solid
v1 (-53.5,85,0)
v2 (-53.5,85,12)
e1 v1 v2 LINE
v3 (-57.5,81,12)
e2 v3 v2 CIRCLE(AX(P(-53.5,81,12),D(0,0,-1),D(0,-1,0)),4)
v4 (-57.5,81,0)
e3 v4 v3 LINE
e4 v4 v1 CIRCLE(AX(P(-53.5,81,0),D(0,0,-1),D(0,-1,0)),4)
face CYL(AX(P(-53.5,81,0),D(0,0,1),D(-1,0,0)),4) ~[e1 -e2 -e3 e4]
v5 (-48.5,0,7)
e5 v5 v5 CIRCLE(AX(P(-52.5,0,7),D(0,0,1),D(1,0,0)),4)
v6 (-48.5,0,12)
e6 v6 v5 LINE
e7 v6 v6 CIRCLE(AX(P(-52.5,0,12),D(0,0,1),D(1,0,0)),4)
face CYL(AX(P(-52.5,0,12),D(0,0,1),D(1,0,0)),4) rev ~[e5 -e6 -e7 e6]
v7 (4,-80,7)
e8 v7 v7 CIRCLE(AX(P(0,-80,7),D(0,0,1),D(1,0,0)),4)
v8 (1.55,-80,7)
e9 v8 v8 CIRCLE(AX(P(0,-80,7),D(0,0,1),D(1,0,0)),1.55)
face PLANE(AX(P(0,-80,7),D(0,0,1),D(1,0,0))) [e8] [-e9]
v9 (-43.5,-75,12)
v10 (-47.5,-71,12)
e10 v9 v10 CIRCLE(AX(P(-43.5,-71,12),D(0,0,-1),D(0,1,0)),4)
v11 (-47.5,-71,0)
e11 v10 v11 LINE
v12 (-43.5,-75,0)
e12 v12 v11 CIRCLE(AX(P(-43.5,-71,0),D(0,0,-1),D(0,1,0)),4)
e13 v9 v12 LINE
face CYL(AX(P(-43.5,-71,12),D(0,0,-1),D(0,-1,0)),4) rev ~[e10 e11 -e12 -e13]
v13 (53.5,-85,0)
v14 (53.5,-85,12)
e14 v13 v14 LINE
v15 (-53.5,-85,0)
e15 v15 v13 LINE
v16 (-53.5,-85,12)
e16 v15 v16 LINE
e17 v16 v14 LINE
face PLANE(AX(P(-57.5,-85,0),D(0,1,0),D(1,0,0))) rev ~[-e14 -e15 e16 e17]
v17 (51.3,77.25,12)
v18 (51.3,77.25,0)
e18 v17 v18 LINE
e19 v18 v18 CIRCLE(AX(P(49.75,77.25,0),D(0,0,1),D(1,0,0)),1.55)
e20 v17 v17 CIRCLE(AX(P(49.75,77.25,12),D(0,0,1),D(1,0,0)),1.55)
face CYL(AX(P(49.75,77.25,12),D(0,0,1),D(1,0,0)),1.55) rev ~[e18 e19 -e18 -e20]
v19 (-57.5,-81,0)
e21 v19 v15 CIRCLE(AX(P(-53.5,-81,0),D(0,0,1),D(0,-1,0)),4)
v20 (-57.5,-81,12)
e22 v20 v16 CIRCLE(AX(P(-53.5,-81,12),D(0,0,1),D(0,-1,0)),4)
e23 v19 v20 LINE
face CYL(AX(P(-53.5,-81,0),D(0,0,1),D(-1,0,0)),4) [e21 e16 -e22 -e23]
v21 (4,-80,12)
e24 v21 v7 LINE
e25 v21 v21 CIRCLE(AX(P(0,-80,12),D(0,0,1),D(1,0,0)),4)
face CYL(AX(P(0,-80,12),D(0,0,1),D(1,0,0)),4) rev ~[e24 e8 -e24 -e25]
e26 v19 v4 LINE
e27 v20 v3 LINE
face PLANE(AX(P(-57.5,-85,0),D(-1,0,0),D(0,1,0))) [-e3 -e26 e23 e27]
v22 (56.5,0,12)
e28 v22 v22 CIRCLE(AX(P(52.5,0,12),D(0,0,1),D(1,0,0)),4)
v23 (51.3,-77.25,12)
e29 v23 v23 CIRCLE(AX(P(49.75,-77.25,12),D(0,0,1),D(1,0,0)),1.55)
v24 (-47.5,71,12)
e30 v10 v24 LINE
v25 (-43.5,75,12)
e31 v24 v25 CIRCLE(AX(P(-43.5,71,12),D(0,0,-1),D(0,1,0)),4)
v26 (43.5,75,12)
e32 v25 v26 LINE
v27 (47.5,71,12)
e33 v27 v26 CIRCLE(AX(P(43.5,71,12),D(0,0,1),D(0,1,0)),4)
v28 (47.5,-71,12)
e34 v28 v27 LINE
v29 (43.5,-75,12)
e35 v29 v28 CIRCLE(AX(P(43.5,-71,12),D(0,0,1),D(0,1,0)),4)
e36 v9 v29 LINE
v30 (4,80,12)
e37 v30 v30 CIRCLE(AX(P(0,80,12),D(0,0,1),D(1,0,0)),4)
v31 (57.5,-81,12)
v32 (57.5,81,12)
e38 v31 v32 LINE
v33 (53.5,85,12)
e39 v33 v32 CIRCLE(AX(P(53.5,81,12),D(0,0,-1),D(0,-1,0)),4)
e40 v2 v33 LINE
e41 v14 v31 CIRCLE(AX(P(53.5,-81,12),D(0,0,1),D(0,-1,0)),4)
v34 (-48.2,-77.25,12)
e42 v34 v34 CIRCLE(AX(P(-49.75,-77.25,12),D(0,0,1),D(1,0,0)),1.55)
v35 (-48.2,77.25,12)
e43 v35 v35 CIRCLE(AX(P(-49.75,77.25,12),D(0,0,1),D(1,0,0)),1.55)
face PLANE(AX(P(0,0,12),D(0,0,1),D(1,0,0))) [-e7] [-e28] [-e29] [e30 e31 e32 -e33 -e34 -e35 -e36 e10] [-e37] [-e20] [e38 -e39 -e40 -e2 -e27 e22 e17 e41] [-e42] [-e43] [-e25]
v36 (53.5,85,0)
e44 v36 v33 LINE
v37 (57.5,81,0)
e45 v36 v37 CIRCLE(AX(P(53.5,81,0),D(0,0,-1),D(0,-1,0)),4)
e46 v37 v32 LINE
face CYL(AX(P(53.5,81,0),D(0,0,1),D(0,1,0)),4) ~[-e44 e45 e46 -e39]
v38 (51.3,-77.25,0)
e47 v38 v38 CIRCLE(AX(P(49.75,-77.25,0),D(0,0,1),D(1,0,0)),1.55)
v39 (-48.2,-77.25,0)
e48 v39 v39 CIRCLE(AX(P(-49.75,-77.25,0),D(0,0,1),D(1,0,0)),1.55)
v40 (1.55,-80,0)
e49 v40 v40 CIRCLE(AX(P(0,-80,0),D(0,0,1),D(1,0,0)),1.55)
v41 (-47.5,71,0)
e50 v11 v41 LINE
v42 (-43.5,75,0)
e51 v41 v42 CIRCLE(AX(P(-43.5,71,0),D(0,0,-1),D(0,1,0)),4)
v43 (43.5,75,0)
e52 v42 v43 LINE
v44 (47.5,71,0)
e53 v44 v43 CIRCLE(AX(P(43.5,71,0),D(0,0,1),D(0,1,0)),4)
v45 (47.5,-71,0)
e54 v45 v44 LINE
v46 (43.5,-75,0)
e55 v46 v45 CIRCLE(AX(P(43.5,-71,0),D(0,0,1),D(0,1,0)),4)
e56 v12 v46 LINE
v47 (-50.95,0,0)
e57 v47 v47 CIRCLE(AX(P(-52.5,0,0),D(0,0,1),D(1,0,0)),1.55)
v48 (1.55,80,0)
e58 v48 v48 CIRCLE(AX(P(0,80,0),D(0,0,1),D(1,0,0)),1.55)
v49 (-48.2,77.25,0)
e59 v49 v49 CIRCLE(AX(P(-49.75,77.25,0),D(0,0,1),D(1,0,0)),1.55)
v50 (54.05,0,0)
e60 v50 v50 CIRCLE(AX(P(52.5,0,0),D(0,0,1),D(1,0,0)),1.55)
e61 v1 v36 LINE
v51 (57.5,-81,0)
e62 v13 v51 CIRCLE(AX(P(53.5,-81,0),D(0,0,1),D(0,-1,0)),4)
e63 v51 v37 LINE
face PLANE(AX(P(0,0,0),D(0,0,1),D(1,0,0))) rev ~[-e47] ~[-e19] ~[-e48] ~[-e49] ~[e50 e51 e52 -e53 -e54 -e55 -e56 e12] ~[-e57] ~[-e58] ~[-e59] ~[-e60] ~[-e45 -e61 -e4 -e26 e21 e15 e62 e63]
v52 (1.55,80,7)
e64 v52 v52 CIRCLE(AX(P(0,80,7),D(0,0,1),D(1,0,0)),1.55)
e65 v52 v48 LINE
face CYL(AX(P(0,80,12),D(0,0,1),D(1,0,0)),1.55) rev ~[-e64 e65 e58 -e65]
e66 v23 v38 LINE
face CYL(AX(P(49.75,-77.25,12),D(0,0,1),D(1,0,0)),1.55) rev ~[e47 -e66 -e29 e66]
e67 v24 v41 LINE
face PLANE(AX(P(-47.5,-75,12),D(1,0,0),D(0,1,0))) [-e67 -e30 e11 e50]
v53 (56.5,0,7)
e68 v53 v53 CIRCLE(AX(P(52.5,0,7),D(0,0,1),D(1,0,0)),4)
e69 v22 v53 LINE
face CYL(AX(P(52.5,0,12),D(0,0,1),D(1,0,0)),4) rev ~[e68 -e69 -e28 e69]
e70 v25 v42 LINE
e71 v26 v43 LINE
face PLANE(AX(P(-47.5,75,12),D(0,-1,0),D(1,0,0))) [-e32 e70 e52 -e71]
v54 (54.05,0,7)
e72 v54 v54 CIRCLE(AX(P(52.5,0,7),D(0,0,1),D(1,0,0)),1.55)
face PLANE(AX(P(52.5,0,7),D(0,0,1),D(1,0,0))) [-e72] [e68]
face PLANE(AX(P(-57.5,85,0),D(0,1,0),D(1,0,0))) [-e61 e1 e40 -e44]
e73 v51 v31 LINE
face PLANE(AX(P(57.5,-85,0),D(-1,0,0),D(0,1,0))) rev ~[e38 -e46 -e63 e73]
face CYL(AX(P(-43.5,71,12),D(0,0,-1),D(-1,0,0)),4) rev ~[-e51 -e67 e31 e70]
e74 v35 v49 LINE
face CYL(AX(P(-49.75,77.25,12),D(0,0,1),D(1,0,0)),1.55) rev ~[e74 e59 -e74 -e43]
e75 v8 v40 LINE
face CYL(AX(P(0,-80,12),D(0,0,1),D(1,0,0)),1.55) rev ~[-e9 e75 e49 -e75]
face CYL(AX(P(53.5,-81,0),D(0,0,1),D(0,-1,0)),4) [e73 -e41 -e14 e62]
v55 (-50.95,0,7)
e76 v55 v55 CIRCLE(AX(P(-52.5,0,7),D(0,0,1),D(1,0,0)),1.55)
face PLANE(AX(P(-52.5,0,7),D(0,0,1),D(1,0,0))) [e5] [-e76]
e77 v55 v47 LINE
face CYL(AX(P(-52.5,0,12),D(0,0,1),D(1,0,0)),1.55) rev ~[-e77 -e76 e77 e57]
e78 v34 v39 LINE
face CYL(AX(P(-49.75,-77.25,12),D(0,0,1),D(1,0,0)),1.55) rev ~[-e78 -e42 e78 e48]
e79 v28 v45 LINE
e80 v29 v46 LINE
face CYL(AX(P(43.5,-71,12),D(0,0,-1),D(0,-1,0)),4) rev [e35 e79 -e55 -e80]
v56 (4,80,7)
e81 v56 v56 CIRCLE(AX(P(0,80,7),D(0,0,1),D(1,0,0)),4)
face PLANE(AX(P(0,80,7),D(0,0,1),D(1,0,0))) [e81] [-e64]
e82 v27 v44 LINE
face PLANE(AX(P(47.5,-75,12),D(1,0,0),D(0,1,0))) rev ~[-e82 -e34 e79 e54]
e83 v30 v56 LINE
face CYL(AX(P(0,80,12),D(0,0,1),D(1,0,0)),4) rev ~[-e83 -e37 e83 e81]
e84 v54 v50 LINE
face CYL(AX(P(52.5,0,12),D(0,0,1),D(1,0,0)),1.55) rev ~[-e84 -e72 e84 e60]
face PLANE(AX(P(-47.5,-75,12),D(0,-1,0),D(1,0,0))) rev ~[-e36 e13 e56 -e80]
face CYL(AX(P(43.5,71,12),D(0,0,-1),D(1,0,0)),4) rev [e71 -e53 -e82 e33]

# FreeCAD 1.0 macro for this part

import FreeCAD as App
import Part
import Sketcher

V = App.Vector


def edges_at(feature, points):
    """Names of the edges that pass closest to the given points."""
    edges = feature.Shape.Edges
    near = lambda p: min(range(len(edges)), key=lambda i: edges[i].distToShape(Part.Vertex(*p))[0])
    return sorted({f"Edge{near(p) + 1}" for p in points})

doc = App.newDocument("Part")
body = doc.addObject("PartDesign::Body", "Body")

sketch1 = doc.addObject("Sketcher::SketchObject", "Sketch")
body.addObject(sketch1)
sketch1.AttachmentSupport = (doc.XY_Plane, [""])
sketch1.MapMode = "FlatFace"
sketch1.addGeometry([
    Part.LineSegment(V(-57.5, 85, 0), V(-57.5, -85, 0)),
    Part.LineSegment(V(-57.5, -85, 0), V(57.5, -85, 0)),
    Part.LineSegment(V(57.5, -85, 0), V(57.5, 85, 0)),
    Part.LineSegment(V(57.5, 85, 0), V(-57.5, 85, 0)),
], False)
sketch1.addConstraint([
    Sketcher.Constraint("Coincident", 0, 2, 1, 1),
    Sketcher.Constraint("Coincident", 1, 2, 2, 1),
    Sketcher.Constraint("Coincident", 2, 2, 3, 1),
    Sketcher.Constraint("Coincident", 3, 2, 0, 1),
    Sketcher.Constraint("Vertical", 0),
    Sketcher.Constraint("Horizontal", 1),
    Sketcher.Constraint("Vertical", 2),
    Sketcher.Constraint("Horizontal", 3),
    Sketcher.Constraint("Symmetric", 0, 2, 2, 2, -1, 1),
    Sketcher.Constraint("DistanceX", 1, 1, 1, 2, 115.0),
    Sketcher.Constraint("DistanceY", 0, 2, 0, 1, 170.0),
])
pad1 = doc.addObject("PartDesign::Pad", "Pad")
body.addObject(pad1)
pad1.Profile = sketch1
pad1.Length = 12

sketch2 = doc.addObject("Sketcher::SketchObject", "Sketch001")
body.addObject(sketch2)
sketch2.AttachmentSupport = (doc.XY_Plane, [""])
sketch2.MapMode = "FlatFace"
sketch2.AttachmentOffset = App.Placement(V(0, 0, 12), App.Rotation())
sketch2.addGeometry([
    Part.LineSegment(V(-47.5, 75, 0), V(-47.5, -75, 0)),
    Part.LineSegment(V(-47.5, -75, 0), V(47.5, -75, 0)),
    Part.LineSegment(V(47.5, -75, 0), V(47.5, 75, 0)),
    Part.LineSegment(V(47.5, 75, 0), V(-47.5, 75, 0)),
], False)
sketch2.addConstraint([
    Sketcher.Constraint("Coincident", 0, 2, 1, 1),
    Sketcher.Constraint("Coincident", 1, 2, 2, 1),
    Sketcher.Constraint("Coincident", 2, 2, 3, 1),
    Sketcher.Constraint("Coincident", 3, 2, 0, 1),
    Sketcher.Constraint("Vertical", 0),
    Sketcher.Constraint("Horizontal", 1),
    Sketcher.Constraint("Vertical", 2),
    Sketcher.Constraint("Horizontal", 3),
    Sketcher.Constraint("Symmetric", 0, 2, 2, 2, -1, 1),
    Sketcher.Constraint("DistanceX", 1, 1, 1, 2, 95.0),
    Sketcher.Constraint("DistanceY", 0, 2, 0, 1, 150.0),
])
pocket1 = doc.addObject("PartDesign::Pocket", "Pocket")
body.addObject(pocket1)
pocket1.Profile = sketch2
pocket1.Type = "ThroughAll"

sketch3 = doc.addObject("Sketcher::SketchObject", "Sketch002")
body.addObject(sketch3)
sketch3.AttachmentSupport = (doc.XY_Plane, [""])
sketch3.MapMode = "FlatFace"
sketch3.AttachmentOffset = App.Placement(V(0, 0, 12), App.Rotation())
sketch3.addGeometry([
    Part.Circle(V(0, 80, 0), V(0, 0, 1), 1.55),
    Part.Circle(V(0, -80, 0), V(0, 0, 1), 1.55),
    Part.Circle(V(52.5, 0, 0), V(0, 0, 1), 1.55),
    Part.Circle(V(-52.5, 0, 0), V(0, 0, 1), 1.55),
], False)
sketch3.addConstraint([
    Sketcher.Constraint("Equal", 0, 1),
    Sketcher.Constraint("Equal", 1, 2),
    Sketcher.Constraint("Equal", 2, 3),
    Sketcher.Constraint("Symmetric", 0, 3, 1, 3, -1, 1),
    Sketcher.Constraint("Symmetric", 2, 3, 3, 3, -1, 1),
    Sketcher.Constraint("PointOnObject", 0, 3, -2),
    Sketcher.Constraint("PointOnObject", 2, 3, -1),
    Sketcher.Constraint("Diameter", 0, 3.1),
    Sketcher.Constraint("DistanceY", -1, 1, 0, 3, 80.0),
    Sketcher.Constraint("DistanceX", 3, 3, 2, 3, 105.0),
])
pocket2 = doc.addObject("PartDesign::Pocket", "Pocket001")
body.addObject(pocket2)
pocket2.Profile = sketch3
pocket2.Type = "ThroughAll"
doc.recompute()

fillet = doc.addObject("PartDesign::Fillet", "Fillet")
body.addObject(fillet)
fillet.Base = (pocket2, edges_at(pocket2, [
    (47.5, 75, 6),
    (-47.5, 75, 6),
    (57.5, 85, 6),
    (57.5, -85, 6),
    (-57.5, -85, 6),
    (-57.5, 85, 6),
    (47.5, -75, 6),
    (-47.5, -75, 6),
]))
fillet.Radius = 4

sketch4 = doc.addObject("Sketcher::SketchObject", "Sketch003")
body.addObject(sketch4)
sketch4.AttachmentSupport = (doc.XY_Plane, [""])
sketch4.MapMode = "FlatFace"
sketch4.AttachmentOffset = App.Placement(V(0, 0, 12), App.Rotation())
sketch4.addGeometry([
    Part.Circle(V(-49.75, 77.25, 0), V(0, 0, 1), 1.55),
    Part.Circle(V(49.75, 77.25, 0), V(0, 0, 1), 1.55),
    Part.Circle(V(49.75, -77.25, 0), V(0, 0, 1), 1.55),
    Part.Circle(V(-49.75, -77.25, 0), V(0, 0, 1), 1.55),
], False)
sketch4.addConstraint([
    Sketcher.Constraint("Equal", 0, 1),
    Sketcher.Constraint("Equal", 1, 2),
    Sketcher.Constraint("Equal", 2, 3),
    Sketcher.Constraint("Symmetric", 0, 3, 2, 3, -1, 1),
    Sketcher.Constraint("Symmetric", 1, 3, 3, 3, -1, 1),
    Sketcher.Constraint("Symmetric", 0, 3, 1, 3, -2),
    Sketcher.Constraint("Diameter", 0, 3.1),
    Sketcher.Constraint("DistanceX", 0, 3, 1, 3, 99.5),
    Sketcher.Constraint("DistanceY", 2, 3, 1, 3, 154.5),
])
pocket3 = doc.addObject("PartDesign::Pocket", "Pocket002")
body.addObject(pocket3)
pocket3.Profile = sketch4
pocket3.Type = "ThroughAll"

sketch5 = doc.addObject("Sketcher::SketchObject", "Sketch004")
body.addObject(sketch5)
sketch5.AttachmentSupport = (doc.XY_Plane, [""])
sketch5.MapMode = "FlatFace"
sketch5.AttachmentOffset = App.Placement(V(0, 0, 12), App.Rotation())
sketch5.addGeometry([
    Part.Circle(V(0, 80, 0), V(0, 0, 1), 4),
    Part.Circle(V(-52.5, 0, 0), V(0, 0, 1), 4),
    Part.Circle(V(0, -80, 0), V(0, 0, 1), 4),
    Part.Circle(V(52.5, 0, 0), V(0, 0, 1), 4),
], False)
sketch5.addConstraint([
    Sketcher.Constraint("Equal", 0, 1),
    Sketcher.Constraint("Equal", 1, 2),
    Sketcher.Constraint("Equal", 2, 3),
    Sketcher.Constraint("Symmetric", 0, 3, 2, 3, -1, 1),
    Sketcher.Constraint("Symmetric", 1, 3, 3, 3, -1, 1),
    Sketcher.Constraint("PointOnObject", 0, 3, -2),
    Sketcher.Constraint("PointOnObject", 1, 3, -1),
    Sketcher.Constraint("Diameter", 0, 8.0),
    Sketcher.Constraint("DistanceY", -1, 1, 0, 3, 80.0),
    Sketcher.Constraint("DistanceX", 1, 3, 3, 3, 105.0),
])
pocket4 = doc.addObject("PartDesign::Pocket", "Pocket003")
body.addObject(pocket4)
pocket4.Profile = sketch5
pocket4.Length = 5

doc.recompute()
